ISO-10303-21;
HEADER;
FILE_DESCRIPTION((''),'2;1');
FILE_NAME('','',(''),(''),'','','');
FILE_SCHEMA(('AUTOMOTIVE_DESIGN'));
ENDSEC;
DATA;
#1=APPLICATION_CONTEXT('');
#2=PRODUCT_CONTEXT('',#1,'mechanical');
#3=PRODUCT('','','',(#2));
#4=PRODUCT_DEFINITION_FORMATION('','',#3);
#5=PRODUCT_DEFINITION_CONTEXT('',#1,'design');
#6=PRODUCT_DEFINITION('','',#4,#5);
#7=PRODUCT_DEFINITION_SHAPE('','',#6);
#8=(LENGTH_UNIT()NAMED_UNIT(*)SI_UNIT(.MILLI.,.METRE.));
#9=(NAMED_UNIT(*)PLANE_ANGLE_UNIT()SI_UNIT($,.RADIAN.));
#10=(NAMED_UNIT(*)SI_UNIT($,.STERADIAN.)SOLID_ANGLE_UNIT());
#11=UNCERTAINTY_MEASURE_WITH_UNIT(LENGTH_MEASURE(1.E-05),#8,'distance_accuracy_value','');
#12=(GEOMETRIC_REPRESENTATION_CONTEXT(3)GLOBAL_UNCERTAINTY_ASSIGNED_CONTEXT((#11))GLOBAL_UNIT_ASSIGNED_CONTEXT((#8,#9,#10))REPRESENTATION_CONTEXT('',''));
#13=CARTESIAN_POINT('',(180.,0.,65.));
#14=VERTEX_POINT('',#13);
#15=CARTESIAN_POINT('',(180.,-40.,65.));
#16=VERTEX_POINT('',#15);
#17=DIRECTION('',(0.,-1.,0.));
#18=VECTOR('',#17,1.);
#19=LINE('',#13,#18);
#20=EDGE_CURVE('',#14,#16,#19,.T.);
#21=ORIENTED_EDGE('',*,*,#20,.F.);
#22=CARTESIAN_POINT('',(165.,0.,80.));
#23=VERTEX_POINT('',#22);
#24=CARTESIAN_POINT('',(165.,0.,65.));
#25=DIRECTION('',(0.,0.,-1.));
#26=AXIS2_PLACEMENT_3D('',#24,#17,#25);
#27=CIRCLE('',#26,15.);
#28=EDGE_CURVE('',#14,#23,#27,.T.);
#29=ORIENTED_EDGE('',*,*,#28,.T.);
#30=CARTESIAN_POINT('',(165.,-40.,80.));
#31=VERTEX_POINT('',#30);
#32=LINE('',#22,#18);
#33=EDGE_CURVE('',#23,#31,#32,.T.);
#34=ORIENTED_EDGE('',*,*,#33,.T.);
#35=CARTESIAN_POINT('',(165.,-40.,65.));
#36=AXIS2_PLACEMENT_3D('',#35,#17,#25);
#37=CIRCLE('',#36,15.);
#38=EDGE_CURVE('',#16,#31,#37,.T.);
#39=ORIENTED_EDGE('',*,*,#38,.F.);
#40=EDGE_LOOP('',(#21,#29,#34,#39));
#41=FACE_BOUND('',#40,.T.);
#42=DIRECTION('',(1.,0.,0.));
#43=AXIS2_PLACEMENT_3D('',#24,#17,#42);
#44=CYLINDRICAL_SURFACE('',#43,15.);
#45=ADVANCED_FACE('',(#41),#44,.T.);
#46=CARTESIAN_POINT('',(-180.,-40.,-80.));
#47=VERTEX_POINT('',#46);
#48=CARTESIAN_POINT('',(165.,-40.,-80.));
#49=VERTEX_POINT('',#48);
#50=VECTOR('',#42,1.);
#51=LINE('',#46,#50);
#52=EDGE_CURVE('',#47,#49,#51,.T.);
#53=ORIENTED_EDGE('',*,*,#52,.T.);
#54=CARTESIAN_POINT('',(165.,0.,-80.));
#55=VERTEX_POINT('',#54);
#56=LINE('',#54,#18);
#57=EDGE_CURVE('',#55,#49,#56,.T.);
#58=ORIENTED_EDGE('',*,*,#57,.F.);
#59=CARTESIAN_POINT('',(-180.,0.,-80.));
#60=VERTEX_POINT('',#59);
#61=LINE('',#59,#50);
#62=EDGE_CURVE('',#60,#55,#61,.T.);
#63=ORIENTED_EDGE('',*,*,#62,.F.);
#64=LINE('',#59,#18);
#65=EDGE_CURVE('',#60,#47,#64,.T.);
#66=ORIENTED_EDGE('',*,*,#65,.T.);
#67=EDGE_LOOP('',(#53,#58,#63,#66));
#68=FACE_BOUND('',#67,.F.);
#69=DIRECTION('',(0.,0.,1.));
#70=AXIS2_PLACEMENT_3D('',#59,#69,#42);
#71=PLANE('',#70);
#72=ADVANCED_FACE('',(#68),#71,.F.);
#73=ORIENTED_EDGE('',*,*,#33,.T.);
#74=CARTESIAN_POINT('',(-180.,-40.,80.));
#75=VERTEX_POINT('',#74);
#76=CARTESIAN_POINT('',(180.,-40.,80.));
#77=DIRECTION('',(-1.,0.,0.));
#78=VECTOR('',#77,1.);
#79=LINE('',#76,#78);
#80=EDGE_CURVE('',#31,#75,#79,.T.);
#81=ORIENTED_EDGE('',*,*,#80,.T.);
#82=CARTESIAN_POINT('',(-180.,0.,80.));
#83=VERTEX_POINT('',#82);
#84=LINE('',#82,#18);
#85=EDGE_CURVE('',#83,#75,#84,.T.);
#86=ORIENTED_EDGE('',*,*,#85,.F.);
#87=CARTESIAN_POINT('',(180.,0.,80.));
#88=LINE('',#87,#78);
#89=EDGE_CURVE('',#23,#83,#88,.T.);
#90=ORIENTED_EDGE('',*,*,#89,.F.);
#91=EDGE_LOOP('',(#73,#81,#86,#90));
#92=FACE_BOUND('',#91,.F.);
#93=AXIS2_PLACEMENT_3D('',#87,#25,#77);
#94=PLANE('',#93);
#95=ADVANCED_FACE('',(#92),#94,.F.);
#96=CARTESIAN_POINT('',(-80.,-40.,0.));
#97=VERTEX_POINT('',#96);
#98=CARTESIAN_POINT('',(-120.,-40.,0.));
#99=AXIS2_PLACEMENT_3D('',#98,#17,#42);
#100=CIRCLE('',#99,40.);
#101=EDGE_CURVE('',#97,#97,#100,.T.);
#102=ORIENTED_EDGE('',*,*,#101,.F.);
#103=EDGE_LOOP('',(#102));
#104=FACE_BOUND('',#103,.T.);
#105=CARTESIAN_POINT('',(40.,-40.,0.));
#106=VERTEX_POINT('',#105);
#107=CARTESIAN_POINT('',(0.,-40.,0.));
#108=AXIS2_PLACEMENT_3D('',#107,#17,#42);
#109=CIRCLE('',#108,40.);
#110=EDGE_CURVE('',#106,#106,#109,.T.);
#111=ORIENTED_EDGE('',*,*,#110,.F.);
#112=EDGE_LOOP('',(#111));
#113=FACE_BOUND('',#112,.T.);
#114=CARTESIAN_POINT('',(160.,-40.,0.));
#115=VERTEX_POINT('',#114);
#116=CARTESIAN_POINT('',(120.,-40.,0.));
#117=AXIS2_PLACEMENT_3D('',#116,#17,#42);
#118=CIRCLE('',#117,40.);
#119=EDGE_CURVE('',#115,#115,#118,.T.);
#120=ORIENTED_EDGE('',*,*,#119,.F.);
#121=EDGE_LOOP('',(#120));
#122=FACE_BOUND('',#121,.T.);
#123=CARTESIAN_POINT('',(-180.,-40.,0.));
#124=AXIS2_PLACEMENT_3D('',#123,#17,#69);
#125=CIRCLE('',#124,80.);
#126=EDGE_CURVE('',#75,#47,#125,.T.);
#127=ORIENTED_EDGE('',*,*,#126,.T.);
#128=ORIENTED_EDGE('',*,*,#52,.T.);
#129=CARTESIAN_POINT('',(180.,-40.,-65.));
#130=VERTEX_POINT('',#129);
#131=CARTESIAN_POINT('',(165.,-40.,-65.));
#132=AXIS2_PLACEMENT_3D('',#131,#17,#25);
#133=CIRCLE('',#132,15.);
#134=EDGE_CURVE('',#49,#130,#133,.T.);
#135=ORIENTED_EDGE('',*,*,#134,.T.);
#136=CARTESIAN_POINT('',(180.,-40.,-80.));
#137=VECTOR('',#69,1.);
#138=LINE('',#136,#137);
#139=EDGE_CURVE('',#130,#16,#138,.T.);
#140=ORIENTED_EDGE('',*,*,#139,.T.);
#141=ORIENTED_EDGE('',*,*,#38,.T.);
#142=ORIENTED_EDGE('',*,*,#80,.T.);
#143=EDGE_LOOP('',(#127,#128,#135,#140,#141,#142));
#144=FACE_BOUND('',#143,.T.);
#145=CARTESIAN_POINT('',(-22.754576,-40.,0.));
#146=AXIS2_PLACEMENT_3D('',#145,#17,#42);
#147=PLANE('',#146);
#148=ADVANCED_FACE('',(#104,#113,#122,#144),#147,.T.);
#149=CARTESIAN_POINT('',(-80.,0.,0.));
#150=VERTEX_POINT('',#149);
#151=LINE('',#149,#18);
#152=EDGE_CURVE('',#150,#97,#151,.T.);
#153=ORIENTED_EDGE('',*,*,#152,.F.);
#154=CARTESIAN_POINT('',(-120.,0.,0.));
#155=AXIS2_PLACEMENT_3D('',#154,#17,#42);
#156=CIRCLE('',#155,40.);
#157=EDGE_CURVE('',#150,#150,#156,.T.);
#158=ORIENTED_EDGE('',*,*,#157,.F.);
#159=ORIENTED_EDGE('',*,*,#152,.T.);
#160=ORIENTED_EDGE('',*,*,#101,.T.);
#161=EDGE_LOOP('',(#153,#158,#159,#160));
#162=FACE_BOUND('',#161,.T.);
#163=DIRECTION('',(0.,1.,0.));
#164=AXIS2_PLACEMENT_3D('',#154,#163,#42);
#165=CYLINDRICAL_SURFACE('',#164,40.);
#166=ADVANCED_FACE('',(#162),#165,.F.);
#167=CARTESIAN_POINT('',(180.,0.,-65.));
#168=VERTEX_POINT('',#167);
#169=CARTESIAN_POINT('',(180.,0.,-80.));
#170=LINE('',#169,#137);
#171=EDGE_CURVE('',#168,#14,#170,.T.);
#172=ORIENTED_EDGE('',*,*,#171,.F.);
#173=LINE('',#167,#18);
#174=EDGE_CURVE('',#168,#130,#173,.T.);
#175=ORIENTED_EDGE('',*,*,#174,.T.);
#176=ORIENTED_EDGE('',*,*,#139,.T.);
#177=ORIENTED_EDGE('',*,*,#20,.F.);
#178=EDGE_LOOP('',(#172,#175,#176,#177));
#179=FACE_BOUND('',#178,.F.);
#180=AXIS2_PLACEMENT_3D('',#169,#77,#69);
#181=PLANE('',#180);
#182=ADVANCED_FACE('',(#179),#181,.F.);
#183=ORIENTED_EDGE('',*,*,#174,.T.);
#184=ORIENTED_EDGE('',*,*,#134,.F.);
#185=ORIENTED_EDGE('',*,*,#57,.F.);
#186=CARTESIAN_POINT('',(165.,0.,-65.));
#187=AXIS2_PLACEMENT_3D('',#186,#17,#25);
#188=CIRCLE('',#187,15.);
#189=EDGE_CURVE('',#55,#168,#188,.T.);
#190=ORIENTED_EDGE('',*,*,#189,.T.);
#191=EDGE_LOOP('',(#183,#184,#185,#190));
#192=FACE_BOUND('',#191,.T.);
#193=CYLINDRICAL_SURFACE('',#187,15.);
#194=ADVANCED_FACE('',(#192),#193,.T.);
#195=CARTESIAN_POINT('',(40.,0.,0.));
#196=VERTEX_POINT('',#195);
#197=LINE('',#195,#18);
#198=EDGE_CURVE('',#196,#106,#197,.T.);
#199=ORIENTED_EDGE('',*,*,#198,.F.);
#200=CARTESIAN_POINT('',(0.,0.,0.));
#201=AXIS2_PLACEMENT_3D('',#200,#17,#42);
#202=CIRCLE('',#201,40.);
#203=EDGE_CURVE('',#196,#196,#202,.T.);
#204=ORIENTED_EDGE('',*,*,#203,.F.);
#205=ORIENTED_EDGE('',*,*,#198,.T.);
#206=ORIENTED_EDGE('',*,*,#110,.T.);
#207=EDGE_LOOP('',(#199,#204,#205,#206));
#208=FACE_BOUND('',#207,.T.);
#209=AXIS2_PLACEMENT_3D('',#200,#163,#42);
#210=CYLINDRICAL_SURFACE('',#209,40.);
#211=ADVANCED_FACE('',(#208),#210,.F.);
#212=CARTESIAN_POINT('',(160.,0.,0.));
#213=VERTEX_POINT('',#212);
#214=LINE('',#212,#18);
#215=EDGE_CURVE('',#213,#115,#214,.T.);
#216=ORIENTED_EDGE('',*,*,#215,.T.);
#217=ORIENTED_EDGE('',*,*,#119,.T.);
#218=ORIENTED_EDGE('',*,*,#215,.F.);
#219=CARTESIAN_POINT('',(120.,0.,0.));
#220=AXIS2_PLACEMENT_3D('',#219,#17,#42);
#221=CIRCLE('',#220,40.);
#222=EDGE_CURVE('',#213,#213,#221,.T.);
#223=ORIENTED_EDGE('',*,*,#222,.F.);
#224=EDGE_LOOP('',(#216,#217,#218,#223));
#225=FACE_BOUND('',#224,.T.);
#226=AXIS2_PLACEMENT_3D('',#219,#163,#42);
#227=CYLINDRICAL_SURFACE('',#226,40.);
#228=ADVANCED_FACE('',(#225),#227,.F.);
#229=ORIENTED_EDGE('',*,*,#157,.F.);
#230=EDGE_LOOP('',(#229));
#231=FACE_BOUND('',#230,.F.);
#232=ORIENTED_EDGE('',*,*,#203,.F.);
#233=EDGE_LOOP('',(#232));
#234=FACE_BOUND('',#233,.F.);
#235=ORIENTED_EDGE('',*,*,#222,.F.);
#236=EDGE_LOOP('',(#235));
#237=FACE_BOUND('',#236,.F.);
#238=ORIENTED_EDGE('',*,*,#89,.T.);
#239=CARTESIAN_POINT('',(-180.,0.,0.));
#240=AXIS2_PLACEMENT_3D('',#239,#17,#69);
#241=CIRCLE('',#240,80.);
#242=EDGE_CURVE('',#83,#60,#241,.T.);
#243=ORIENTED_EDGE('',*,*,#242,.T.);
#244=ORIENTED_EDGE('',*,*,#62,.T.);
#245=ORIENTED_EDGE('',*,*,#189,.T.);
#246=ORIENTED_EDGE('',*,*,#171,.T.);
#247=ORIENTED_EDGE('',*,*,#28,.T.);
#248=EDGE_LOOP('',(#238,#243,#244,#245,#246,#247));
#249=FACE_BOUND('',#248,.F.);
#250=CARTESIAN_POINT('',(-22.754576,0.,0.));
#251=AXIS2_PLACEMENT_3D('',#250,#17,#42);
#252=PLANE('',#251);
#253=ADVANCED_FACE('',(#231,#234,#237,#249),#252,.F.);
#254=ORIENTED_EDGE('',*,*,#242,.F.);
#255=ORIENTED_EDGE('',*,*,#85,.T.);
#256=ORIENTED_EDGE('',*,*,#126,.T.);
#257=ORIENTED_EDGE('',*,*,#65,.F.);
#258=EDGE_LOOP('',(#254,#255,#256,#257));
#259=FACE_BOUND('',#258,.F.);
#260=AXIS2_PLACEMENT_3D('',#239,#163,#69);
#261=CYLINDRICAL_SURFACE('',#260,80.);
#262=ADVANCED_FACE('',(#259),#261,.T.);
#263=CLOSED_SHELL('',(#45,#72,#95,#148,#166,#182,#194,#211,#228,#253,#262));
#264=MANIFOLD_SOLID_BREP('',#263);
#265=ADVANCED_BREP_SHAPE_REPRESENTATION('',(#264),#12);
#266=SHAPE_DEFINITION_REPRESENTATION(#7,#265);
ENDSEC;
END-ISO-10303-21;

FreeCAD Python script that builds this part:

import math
import FreeCAD as App
import Part
import Sketcher
from FreeCAD import Vector


def edges_at(feature, points):
    """Names of the edges that pass closest to the given points."""
    edges = feature.Shape.Edges
    near = lambda p: min(range(len(edges)), key=lambda i: edges[i].distToShape(Part.Vertex(*p))[0])
    return sorted({f"Edge{near(p) + 1}" for p in points})

doc = App.newDocument("Part")
body = doc.addObject("PartDesign::Body", "Body")

# Sketch on XZ plane
sketch1 = body.newObject("Sketcher::SketchObject", "Sketch")
sketch1.AttachmentSupport = (doc.getObject("XZ_Plane"), [""])
sketch1.MapMode = "FlatFace"
sketch1.addGeometry([
    Part.LineSegment(Vector(-180, -80, 0), Vector(180, -80, 0)),  # 0
    Part.LineSegment(Vector(180, -80, 0), Vector(180, 80, 0)),  # 1
    Part.LineSegment(Vector(180, 80, 0), Vector(-180, 80, 0)),  # 2
    Part.ArcOfCircle(Part.Circle(Vector(-180, 0, 0), Vector(0, 0, 1), 80), math.radians(90), math.radians(270)),  # 3
    Part.Circle(Vector(-120, 0, 0), Vector(0, 0, 1), 40),  # 4
    Part.Circle(Vector(0, 0, 0), Vector(0, 0, 1), 40),  # 5
    Part.Circle(Vector(120, 0, 0), Vector(0, 0, 1), 40),  # 6
], False)
sketch1.addConstraint([
    Sketcher.Constraint("Coincident", 0, 2, 1, 1),
    Sketcher.Constraint("Coincident", 1, 2, 2, 1),
    Sketcher.Constraint("Tangent", 2, 2, 3, 1),
    Sketcher.Constraint("Tangent", 3, 2, 0, 1),
    Sketcher.Constraint("Horizontal", 0),
    Sketcher.Constraint("Vertical", 1),
    Sketcher.Constraint("Horizontal", 2),
    Sketcher.Constraint("Coincident", 5, 3, -1, 1),
    Sketcher.Constraint("Equal", 4, 5),
    Sketcher.Constraint("Equal", 5, 6),
    Sketcher.Constraint("Symmetric", 4, 3, 6, 3, -1, 1),
    Sketcher.Constraint("Symmetric", 0, 2, 2, 2, -1, 1),
    Sketcher.Constraint("PointOnObject", 4, 3, -1),
    Sketcher.Constraint("Diameter", 4, 80.0),
    Sketcher.Constraint("Radius", 3, 80.0),
    Sketcher.Constraint("DistanceX", 0, 1, 0, 2, 360.0),
    Sketcher.Constraint("DistanceX", 4, 3, -1, 1, 120.0),
])
pad1 = body.newObject("PartDesign::Pad", "Pad")
pad1.Profile = sketch1
pad1.Length = 40
doc.recompute()

fillet = body.newObject("PartDesign::Fillet", "Fillet")
fillet.Base = (pad1, edges_at(pad1, [(180, -20, 80), (180, -20, -80)]))
fillet.Radius = 15

doc.recompute()
